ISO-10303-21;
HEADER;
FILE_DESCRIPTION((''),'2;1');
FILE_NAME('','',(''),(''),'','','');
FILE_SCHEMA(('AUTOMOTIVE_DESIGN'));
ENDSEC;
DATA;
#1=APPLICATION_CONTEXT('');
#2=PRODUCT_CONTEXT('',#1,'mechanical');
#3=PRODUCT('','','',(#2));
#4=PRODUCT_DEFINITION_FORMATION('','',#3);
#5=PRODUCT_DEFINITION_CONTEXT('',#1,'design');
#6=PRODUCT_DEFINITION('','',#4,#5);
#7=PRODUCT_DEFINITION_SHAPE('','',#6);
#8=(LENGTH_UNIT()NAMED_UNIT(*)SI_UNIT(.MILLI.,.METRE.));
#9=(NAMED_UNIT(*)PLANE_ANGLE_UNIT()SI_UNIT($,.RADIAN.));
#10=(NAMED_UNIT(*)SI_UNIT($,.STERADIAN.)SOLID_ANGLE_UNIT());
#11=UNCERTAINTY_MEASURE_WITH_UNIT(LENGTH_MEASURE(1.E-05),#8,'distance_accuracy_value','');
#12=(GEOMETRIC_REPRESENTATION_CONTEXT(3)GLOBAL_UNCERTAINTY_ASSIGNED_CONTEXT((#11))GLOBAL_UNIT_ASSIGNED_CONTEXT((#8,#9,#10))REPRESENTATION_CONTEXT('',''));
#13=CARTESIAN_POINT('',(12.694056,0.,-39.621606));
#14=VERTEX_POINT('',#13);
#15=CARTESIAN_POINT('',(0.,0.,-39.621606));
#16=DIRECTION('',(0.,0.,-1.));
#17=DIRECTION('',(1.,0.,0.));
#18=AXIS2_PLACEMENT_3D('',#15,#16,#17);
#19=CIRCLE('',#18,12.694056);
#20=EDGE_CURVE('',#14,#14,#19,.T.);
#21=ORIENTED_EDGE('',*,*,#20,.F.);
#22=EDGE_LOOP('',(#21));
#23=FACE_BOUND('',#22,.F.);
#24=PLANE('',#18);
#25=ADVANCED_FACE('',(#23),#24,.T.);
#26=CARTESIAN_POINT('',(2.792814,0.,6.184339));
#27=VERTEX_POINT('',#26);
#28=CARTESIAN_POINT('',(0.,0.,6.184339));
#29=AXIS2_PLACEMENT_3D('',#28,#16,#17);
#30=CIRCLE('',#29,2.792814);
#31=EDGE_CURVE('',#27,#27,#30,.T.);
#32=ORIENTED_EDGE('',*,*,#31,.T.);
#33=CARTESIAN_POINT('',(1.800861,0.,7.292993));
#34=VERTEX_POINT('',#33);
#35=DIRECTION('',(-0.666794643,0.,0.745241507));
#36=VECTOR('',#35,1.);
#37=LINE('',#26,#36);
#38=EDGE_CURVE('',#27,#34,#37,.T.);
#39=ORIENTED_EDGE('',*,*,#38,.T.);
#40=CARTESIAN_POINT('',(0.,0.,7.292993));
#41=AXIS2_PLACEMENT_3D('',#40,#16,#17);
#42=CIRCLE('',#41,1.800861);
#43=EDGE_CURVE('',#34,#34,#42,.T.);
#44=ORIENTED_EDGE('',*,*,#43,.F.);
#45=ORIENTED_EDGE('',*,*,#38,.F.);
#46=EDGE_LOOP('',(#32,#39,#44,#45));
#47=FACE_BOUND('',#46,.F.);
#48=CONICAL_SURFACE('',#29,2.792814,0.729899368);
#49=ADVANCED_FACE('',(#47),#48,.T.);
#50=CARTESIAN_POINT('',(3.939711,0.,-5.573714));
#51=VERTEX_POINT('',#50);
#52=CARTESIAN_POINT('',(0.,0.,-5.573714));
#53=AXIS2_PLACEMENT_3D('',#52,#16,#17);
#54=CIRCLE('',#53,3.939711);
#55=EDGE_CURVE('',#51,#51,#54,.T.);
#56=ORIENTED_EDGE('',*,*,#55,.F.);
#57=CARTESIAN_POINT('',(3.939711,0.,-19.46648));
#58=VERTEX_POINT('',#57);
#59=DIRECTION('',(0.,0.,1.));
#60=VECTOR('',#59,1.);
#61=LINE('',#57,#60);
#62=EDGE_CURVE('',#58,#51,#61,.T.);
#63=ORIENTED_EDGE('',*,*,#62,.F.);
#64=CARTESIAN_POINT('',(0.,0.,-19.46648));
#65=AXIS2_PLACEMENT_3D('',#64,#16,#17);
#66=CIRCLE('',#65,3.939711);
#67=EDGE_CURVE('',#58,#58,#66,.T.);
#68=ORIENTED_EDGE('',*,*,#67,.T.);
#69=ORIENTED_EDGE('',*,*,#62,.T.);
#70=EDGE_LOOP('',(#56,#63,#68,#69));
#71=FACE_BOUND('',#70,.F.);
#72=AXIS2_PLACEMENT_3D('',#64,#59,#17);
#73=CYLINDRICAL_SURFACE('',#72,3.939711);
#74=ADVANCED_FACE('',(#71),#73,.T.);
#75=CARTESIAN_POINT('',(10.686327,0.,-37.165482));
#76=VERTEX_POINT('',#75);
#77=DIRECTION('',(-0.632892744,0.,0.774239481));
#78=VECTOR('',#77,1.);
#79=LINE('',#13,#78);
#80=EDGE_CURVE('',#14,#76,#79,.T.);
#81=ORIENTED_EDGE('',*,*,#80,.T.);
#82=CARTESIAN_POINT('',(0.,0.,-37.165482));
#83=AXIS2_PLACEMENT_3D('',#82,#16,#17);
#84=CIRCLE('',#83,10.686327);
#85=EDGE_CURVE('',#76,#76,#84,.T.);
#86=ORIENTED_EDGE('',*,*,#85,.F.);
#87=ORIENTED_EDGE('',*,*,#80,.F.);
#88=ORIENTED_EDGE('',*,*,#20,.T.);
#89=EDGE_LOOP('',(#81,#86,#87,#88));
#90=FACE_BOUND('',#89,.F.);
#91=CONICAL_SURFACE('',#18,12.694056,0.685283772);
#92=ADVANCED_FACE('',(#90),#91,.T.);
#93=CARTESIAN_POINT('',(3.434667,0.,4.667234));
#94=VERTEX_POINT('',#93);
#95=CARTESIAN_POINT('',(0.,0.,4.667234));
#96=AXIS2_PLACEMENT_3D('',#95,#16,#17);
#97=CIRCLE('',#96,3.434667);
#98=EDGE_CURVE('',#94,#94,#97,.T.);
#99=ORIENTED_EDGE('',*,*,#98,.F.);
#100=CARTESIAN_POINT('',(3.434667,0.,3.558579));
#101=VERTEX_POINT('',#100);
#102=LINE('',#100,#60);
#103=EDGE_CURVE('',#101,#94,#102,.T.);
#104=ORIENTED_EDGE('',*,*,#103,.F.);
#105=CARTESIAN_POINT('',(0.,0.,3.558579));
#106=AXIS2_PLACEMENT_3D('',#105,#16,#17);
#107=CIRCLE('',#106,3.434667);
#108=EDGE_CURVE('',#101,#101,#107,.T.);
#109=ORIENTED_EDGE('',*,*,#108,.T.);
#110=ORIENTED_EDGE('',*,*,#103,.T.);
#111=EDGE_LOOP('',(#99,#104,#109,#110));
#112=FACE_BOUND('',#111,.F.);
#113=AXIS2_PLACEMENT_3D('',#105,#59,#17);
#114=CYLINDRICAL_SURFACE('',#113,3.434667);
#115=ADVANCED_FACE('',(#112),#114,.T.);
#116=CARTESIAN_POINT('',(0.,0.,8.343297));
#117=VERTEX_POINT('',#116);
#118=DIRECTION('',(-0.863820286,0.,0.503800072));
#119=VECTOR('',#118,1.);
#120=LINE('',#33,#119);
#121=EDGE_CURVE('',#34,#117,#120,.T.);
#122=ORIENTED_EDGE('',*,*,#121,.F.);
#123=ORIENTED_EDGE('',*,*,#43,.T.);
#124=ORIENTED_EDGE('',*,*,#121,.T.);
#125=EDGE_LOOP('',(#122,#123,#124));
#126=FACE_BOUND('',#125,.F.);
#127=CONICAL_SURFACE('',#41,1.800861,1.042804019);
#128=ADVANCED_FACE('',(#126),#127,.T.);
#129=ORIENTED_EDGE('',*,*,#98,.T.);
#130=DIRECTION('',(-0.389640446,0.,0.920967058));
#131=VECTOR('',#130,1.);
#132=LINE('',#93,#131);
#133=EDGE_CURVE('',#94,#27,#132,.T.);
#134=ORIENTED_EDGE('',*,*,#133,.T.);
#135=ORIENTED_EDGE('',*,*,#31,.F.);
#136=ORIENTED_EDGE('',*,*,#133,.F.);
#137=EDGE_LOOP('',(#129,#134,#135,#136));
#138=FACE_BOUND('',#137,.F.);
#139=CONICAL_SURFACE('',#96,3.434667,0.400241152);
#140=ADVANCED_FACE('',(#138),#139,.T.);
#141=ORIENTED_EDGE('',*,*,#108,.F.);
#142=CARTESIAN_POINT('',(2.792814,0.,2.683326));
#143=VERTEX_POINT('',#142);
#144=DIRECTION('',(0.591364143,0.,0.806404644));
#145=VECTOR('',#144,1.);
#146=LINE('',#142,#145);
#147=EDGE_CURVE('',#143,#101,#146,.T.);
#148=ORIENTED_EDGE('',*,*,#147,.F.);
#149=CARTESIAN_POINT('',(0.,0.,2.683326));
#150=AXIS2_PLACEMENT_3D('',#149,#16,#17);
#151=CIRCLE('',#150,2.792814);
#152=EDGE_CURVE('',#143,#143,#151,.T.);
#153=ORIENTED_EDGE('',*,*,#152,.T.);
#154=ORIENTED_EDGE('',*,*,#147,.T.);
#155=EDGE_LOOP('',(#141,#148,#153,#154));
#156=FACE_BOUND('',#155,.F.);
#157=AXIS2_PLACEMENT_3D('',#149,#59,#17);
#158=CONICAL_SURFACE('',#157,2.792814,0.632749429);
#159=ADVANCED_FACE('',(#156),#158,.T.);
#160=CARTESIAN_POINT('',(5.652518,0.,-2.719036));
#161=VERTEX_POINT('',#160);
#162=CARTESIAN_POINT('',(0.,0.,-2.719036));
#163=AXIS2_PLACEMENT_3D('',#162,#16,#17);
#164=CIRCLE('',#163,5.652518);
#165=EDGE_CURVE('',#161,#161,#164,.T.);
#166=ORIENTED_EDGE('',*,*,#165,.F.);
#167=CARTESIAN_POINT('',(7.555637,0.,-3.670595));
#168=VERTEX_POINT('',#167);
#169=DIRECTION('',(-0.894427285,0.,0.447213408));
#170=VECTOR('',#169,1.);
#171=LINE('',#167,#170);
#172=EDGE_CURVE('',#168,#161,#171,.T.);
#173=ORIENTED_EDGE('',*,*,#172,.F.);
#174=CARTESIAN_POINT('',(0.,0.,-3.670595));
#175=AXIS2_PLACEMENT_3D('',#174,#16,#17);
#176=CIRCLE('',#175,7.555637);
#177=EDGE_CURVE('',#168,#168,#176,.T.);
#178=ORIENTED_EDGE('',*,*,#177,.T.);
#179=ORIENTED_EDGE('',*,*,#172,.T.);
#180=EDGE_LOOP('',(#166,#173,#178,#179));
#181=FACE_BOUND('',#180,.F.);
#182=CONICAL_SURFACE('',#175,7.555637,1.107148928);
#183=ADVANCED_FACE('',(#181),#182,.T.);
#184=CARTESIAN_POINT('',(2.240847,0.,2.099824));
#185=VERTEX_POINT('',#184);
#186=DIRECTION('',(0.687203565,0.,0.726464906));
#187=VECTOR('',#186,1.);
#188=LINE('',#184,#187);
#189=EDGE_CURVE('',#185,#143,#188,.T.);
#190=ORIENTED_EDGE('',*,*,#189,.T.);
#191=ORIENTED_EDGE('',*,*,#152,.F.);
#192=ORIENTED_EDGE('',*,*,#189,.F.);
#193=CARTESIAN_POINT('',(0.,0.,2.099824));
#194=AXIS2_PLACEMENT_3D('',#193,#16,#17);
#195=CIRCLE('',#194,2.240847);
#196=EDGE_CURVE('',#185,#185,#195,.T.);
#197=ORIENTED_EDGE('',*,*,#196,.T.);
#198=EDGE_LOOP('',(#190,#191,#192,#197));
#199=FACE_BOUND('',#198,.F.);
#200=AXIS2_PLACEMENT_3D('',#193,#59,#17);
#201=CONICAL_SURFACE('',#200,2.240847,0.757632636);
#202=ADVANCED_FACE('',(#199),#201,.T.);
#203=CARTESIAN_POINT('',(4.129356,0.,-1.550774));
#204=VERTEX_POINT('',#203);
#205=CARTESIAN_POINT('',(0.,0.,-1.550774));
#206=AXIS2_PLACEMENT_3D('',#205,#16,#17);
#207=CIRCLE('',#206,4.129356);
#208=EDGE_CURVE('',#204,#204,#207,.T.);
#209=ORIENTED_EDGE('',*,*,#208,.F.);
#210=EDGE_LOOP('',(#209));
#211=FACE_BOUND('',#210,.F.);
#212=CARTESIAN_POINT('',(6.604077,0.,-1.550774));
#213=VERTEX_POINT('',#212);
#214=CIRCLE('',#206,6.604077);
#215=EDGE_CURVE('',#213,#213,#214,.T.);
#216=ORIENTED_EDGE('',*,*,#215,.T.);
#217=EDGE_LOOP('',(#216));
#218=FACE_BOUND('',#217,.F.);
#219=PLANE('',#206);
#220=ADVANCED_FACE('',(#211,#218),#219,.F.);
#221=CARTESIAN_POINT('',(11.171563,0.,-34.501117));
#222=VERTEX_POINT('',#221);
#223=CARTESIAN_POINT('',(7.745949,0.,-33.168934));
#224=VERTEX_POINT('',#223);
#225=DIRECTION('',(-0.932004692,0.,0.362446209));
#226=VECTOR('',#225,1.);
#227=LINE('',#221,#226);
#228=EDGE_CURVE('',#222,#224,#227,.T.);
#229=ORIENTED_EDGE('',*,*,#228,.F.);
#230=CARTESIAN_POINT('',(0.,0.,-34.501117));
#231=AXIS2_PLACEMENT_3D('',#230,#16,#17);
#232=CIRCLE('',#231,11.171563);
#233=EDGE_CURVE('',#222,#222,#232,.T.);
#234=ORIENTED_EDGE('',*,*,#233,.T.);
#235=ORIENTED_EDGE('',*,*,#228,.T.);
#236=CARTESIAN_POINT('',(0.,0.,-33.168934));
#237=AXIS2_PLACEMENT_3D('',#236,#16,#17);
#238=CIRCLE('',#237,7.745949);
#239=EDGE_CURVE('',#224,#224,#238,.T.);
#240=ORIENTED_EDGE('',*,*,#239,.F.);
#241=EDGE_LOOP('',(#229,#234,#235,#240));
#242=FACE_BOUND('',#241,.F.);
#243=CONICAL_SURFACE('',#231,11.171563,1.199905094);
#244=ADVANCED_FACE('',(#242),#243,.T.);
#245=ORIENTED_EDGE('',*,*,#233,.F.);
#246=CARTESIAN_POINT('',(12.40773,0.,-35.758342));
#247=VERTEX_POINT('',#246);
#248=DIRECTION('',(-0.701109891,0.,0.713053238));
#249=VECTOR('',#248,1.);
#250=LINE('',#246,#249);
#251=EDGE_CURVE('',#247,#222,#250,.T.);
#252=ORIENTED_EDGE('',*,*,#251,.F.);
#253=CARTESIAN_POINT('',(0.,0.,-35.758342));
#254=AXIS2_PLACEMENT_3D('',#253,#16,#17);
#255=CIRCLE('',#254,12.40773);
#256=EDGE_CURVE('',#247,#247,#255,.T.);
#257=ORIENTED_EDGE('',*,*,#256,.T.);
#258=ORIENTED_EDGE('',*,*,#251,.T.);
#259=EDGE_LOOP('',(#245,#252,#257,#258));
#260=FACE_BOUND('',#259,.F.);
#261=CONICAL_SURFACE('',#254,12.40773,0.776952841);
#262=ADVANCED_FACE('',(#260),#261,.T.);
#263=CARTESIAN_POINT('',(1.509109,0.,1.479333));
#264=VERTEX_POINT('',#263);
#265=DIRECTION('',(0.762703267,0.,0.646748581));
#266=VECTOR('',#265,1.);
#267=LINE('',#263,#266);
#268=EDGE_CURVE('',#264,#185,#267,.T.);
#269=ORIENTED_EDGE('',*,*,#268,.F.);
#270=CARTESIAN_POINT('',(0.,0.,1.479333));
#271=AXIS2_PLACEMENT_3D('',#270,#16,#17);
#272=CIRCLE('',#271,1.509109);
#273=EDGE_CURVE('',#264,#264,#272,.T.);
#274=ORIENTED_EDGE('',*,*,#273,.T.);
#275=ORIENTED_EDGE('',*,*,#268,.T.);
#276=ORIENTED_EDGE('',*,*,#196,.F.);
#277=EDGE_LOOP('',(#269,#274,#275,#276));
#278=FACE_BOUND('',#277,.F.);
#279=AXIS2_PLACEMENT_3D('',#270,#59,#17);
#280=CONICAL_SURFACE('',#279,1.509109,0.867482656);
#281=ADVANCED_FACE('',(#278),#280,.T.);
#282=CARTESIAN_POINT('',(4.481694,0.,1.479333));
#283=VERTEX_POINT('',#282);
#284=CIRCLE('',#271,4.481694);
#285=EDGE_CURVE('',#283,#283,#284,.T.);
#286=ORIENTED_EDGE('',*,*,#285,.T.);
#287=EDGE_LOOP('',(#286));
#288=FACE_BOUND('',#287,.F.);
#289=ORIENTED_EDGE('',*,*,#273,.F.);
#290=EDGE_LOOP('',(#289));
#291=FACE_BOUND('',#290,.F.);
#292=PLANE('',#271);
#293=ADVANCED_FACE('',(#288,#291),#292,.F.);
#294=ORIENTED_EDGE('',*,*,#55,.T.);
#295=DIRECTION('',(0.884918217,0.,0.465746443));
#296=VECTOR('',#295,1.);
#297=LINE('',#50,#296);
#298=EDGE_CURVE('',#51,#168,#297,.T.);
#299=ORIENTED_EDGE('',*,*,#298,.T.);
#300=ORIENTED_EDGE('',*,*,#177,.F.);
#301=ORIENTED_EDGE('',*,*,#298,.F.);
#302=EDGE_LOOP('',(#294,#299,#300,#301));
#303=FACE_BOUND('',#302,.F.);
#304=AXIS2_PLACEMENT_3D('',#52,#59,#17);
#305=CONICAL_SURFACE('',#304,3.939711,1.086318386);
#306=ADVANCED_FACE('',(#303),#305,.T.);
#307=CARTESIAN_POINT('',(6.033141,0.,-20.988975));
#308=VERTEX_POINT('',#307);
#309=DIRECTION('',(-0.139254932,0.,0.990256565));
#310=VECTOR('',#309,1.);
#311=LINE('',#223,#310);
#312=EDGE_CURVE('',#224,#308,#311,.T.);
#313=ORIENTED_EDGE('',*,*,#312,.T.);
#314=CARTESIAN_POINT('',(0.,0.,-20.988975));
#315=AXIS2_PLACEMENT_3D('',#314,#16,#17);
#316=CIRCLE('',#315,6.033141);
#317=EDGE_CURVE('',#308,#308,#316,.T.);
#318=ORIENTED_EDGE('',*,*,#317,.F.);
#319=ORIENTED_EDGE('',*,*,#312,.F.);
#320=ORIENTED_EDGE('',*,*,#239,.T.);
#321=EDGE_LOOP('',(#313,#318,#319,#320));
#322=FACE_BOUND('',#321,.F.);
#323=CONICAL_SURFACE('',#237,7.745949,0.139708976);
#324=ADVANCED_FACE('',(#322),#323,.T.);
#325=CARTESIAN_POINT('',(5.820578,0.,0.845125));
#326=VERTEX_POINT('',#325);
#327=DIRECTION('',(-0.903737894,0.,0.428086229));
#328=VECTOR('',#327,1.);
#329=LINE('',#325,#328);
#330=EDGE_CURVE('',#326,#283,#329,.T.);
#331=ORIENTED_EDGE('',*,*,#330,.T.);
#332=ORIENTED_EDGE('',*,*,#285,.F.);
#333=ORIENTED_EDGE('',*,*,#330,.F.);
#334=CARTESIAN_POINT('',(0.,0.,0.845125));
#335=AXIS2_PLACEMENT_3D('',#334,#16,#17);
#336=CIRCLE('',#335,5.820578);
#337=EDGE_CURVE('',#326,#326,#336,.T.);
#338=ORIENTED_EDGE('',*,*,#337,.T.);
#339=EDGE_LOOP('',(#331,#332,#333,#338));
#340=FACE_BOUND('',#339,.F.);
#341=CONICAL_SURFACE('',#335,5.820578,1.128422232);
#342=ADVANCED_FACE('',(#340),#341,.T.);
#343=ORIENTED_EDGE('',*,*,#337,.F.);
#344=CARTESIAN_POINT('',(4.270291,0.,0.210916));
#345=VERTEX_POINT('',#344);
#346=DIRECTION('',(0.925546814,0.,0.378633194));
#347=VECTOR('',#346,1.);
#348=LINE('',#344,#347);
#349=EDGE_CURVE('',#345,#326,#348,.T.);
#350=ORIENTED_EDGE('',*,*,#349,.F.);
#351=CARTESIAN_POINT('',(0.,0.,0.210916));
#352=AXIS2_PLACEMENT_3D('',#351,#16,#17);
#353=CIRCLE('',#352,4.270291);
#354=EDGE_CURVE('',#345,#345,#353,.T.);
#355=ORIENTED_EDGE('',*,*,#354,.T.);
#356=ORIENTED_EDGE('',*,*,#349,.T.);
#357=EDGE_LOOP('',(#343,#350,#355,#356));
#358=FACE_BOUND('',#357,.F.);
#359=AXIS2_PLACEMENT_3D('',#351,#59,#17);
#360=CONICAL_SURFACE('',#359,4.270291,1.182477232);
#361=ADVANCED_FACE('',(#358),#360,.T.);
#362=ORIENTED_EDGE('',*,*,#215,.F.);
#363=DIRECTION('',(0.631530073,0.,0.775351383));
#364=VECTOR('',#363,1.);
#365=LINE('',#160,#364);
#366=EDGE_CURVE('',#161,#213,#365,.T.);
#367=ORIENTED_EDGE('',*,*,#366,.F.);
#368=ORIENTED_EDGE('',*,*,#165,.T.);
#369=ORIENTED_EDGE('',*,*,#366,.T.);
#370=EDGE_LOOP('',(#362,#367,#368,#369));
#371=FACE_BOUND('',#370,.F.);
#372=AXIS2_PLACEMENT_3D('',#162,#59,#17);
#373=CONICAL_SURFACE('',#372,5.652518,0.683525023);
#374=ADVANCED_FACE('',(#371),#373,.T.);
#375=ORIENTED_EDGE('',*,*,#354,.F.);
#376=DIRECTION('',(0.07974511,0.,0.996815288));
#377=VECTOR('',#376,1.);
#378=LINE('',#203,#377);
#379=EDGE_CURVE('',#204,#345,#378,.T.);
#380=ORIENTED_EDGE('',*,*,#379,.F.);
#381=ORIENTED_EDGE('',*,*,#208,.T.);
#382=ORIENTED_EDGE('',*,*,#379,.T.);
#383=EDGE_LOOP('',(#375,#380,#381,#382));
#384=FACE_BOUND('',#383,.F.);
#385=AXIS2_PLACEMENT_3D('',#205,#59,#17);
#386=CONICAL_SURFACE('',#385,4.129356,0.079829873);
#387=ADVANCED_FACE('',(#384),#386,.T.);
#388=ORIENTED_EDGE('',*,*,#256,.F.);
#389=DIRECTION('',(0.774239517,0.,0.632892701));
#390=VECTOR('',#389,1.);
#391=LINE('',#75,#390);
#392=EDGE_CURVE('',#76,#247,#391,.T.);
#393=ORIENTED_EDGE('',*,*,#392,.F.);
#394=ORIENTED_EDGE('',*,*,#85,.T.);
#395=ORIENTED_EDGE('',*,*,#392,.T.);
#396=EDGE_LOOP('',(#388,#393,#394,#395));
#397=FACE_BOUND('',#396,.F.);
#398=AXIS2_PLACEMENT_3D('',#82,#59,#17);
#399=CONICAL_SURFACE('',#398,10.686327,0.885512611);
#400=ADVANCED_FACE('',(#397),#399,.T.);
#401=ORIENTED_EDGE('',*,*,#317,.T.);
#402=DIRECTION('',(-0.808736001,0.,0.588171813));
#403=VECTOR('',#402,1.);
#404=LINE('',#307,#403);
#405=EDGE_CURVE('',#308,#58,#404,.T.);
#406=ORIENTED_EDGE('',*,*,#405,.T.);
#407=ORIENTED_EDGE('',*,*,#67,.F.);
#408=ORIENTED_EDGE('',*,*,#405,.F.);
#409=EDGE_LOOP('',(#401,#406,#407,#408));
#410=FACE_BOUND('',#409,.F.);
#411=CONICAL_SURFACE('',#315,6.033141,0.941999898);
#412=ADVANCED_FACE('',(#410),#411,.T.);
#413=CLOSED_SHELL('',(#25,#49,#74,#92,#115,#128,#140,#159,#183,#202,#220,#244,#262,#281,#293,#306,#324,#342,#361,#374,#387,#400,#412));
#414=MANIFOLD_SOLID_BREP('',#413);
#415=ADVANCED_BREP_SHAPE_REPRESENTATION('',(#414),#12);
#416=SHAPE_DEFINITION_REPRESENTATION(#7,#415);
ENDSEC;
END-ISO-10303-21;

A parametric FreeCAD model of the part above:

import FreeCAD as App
import Part
import Sketcher

V = App.Vector
Q = App.Units.Quantity


def add_polygon(sketch, points):
    """Adds a closed chain of lines whose ends are joined by coincident constraints."""
    first, n = sketch.GeometryCount, len(points)
    for a, b in zip(points, points[1:] + points[:1]):
        sketch.addGeometry(Part.LineSegment(App.Vector(*a, 0), App.Vector(*b, 0)), False)
    for i in range(n):
        sketch.addConstraint(Sketcher.Constraint("Coincident", first + i, 2, first + (i + 1) % n, 1))

doc = App.newDocument("Part")
body = doc.addObject("PartDesign::Body", "Body")

sketch1 = doc.addObject("Sketcher::SketchObject", "Sketch")
body.addObject(sketch1)
sketch1.AttachmentSupport = (doc.XZ_Plane, [""])
sketch1.MapMode = "FlatFace"
add_polygon(sketch1, [(0, -39.6), (12.7, -39.6), (10.7, -37.2), (12.4, -35.8), (11.2, -34.5), (7.7, -33.2), (6, -21), (3.9, -19.5), (3.9, -5.6), (7.6, -3.7), (5.7, -2.7), (6.6, -1.6), (4.1, -1.6), (4.3, 0.2), (5.8, 0.8), (4.5, 1.5), (1.5, 1.5), (2.2, 2.1), (2.8, 2.7), (3.4, 3.6), (3.4, 4.7), (2.8, 6.2), (1.8, 7.3), (0, 8.3)])
sketch1.addConstraint([
    Sketcher.Constraint("Horizontal", 0),
    Sketcher.Constraint("Vertical", 7),
    Sketcher.Constraint("Horizontal", 11),
    Sketcher.Constraint("Horizontal", 15),
    Sketcher.Constraint("Vertical", 19),
    Sketcher.Constraint("Vertical", 23),
    Sketcher.Constraint("PointOnObject", 22, 2, -2),
    Sketcher.Constraint("Perpendicular", 1, 2),
    Sketcher.Constraint("Vertical", 17, 2, 20, 2),
    Sketcher.Constraint("DistanceY", 1, 2, 6, 2, Q("17.699002 mm")),
    Sketcher.Constraint("Distance", 5, Q("12.299801 mm")),
    Sketcher.Constraint("Distance", 16, Q("0.959401 mm")),
    Sketcher.Constraint("DistanceX", 11, 2, 11, 1, Q("2.474721 mm")),
    Sketcher.Constraint("DistanceY", 4, 2, 9, 2, Q("30.449898 mm")),
    Sketcher.Constraint("DistanceY", 5, 2, 10, 2, Q("19.438201 mm")),
    Sketcher.Constraint("DistanceX", 13, 2, 10, 2, Q("0.783499 mm")),
    Sketcher.Constraint("DistanceY", 10, 2, 13, 2, Q("2.395899 mm")),
    Sketcher.Constraint("DistanceY", 13, 2, 16, 2, Q("1.254699 mm")),
    Sketcher.Constraint("DistanceY", 13, 2, 17, 2, Q("1.838201 mm")),
    Sketcher.Constraint("DistanceY", 14, 2, 19, 2, Q("3.187901 mm")),
    Sketcher.Constraint("Distance", 6, Q("2.588521 mm")),
    Sketcher.Constraint("Distance", 8, Q("4.08617 mm")),
    Sketcher.Constraint("Distance", 9, Q("2.127752 mm")),
    Sketcher.Constraint("Distance", 10, Q("1.506752 mm")),
    Sketcher.Constraint("Distance", 12, Q("1.767318 mm")),
    Sketcher.Constraint("DistanceX", 0, 1, 0, 2, Q("12.694056 mm")),
    Sketcher.Constraint("DistanceX", 15, 2, 15, 1, Q("2.972585 mm")),
    Sketcher.Constraint("DistanceY", 7, 1, 7, 2, Q("13.892766 mm")),
    Sketcher.Constraint("DistanceY", 19, 1, 19, 2, Q("1.108655 mm")),
    Sketcher.Constraint("DistanceY", 23, 2, 23, 1, Q("47.964903 mm")),
    Sketcher.Constraint("DistanceY", 1, 2, -1, 1, Q("37.165482 mm")),
    Sketcher.Constraint("DistanceX", -1, 1, 2, 2, Q("12.40773 mm")),
    Sketcher.Constraint("DistanceX", -1, 1, 4, 2, Q("7.745949 mm")),
    Sketcher.Constraint("DistanceX", -1, 1, 5, 2, Q("6.033141 mm")),
    Sketcher.Constraint("DistanceX", -1, 1, 6, 2, Q("3.939711 mm")),
    Sketcher.Constraint("DistanceX", -1, 1, 12, 2, Q("4.270291 mm")),
    Sketcher.Constraint("DistanceX", -1, 1, 13, 2, Q("5.820578 mm")),
    Sketcher.Constraint("DistanceX", -1, 1, 15, 2, Q("1.509109 mm")),
    Sketcher.Constraint("DistanceY", -1, 1, 18, 2, Q("3.558579 mm")),
    Sketcher.Constraint("DistanceY", -1, 1, 20, 2, Q("6.184339 mm")),
    Sketcher.Constraint("DistanceX", -1, 1, 21, 2, Q("1.800861 mm")),
    Sketcher.Constraint("DistanceX", 1, 2, 0, 2, Q("2.007729 mm")),
    Sketcher.Constraint("DistanceY", 1, 2, 2, 2, Q("1.40714 mm")),
    Sketcher.Constraint("DistanceY", 0, 2, 3, 2, Q("5.120489 mm")),
    Sketcher.Constraint("DistanceX", 17, 2, 14, 2, Q("1.68888 mm")),
    Sketcher.Constraint("DistanceX", 16, 2, 18, 2, Q("1.19382 mm")),
    Sketcher.Constraint("DistanceY", 19, 2, 21, 2, Q("2.625759 mm")),
    Sketcher.Constraint("Distance", 3, Q("1.763157 mm")),
])
revolution = doc.addObject("PartDesign::Revolution", "Revolution")
body.addObject(revolution)
revolution.Profile = sketch1
revolution.ReferenceAxis = (sketch1, ["V_Axis"])
revolution.Angle = 360

doc.recompute()
